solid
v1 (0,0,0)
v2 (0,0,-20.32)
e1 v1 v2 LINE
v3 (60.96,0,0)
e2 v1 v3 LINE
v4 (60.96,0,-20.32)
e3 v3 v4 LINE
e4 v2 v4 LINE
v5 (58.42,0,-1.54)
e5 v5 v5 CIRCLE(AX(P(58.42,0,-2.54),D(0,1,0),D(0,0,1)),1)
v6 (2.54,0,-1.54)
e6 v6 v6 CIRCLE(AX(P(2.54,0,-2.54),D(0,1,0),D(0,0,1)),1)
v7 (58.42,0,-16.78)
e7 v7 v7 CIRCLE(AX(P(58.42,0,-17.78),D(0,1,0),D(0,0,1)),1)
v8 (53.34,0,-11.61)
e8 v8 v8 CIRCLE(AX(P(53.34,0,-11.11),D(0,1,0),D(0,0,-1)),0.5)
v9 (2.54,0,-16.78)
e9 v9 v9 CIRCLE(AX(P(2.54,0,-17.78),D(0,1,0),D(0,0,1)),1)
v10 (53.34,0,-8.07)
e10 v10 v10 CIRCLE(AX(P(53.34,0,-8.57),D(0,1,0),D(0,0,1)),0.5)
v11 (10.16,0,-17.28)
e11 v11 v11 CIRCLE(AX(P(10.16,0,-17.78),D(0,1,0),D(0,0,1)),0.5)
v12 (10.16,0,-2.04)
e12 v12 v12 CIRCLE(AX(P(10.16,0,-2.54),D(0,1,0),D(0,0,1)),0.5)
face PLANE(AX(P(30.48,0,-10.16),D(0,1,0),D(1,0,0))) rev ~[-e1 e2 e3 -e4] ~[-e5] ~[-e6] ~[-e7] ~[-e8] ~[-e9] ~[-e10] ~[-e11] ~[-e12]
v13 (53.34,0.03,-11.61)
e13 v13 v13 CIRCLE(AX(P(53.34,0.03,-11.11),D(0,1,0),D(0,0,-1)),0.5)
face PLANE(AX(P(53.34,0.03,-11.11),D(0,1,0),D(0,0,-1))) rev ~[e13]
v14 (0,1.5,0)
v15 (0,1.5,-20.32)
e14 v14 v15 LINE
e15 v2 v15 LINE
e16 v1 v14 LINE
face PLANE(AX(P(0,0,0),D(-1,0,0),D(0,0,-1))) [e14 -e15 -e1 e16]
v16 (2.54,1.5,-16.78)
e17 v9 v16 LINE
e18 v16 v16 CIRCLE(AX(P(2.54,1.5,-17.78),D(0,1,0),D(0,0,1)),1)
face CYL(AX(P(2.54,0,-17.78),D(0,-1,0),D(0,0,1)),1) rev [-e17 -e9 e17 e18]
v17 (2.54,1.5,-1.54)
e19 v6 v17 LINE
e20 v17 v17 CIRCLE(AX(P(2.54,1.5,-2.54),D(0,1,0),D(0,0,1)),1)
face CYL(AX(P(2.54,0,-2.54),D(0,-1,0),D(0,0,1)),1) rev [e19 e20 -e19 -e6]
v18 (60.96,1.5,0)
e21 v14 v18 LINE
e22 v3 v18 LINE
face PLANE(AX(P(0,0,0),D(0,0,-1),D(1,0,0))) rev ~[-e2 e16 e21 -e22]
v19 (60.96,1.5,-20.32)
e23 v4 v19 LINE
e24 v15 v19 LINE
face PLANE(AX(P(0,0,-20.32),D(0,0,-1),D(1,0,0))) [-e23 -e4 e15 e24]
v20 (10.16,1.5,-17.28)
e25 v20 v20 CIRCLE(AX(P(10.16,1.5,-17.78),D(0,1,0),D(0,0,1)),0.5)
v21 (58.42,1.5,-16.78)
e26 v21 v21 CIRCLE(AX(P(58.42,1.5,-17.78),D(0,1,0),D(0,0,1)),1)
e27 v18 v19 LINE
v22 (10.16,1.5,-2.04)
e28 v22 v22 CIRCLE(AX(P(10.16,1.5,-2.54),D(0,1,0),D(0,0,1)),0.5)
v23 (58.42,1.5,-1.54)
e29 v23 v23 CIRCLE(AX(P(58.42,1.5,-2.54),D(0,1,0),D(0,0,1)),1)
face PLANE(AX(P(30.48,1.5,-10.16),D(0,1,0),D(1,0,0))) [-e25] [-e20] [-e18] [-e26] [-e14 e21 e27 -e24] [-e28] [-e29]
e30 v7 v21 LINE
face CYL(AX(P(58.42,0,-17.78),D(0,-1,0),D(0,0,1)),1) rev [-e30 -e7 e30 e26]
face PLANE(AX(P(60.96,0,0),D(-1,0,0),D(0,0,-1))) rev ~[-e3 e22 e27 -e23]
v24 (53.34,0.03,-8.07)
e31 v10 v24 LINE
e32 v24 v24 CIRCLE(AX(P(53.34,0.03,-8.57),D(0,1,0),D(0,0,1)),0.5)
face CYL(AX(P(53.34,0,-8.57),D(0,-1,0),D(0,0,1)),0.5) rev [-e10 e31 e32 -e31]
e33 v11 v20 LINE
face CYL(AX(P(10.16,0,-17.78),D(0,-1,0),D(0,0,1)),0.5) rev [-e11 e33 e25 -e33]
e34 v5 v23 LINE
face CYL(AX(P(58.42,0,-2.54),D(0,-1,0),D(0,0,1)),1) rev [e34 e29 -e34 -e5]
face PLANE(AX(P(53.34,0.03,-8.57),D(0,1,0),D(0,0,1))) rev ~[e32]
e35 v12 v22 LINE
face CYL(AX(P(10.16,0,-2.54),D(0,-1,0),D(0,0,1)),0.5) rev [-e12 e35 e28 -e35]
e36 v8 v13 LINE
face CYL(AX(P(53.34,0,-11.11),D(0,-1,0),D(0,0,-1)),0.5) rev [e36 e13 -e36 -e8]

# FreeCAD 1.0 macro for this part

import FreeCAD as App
import Part
import Sketcher

doc = App.newDocument("Part")
body = doc.addObject("PartDesign::Body", "Body")

# Sketch on XZ plane
sketch1 = body.newObject("Sketcher::SketchObject", "Sketch")
sketch1.AttachmentSupport = (doc.getObject("XZ_Plane"), [""])
sketch1.MapMode = "FlatFace"
sketch1.addGeometry(Part.LineSegment(App.Vector(0, -20.32, 0), App.Vector(0, 0, 0)), False)
sketch1.addGeometry(Part.LineSegment(App.Vector(0, 0, 0), App.Vector(60.96, 0, 0)), False)
sketch1.addGeometry(Part.LineSegment(App.Vector(60.96, 0, 0), App.Vector(60.96, -20.32, 0)), False)
sketch1.addGeometry(Part.LineSegment(App.Vector(60.96, -20.32, 0), App.Vector(0, -20.32, 0)), False)
sketch1.addGeometry(Part.Circle(App.Vector(2.54, -2.54, 0), App.Vector(0, 0, 1), 1), False)
sketch1.addGeometry(Part.Circle(App.Vector(10.16, -2.54, 0), App.Vector(0, 0, 1), 0.5), False)
sketch1.addGeometry(Part.Circle(App.Vector(58.42, -2.54, 0), App.Vector(0, 0, 1), 1), False)
sketch1.addGeometry(Part.Circle(App.Vector(2.54, -17.78, 0), App.Vector(0, 0, 1), 1), False)
sketch1.addGeometry(Part.Circle(App.Vector(10.16, -17.78, 0), App.Vector(0, 0, 1), 0.5), False)
sketch1.addGeometry(Part.Circle(App.Vector(58.42, -17.78, 0), App.Vector(0, 0, 1), 1), False)
sketch1.addConstraint(Sketcher.Constraint("Coincident", 0, 2, 1, 1))
sketch1.addConstraint(Sketcher.Constraint("Coincident", 1, 2, 2, 1))
sketch1.addConstraint(Sketcher.Constraint("Coincident", 2, 2, 3, 1))
sketch1.addConstraint(Sketcher.Constraint("Coincident", 3, 2, 0, 1))
sketch1.addConstraint(Sketcher.Constraint("Vertical", 0))
sketch1.addConstraint(Sketcher.Constraint("Horizontal", 1))
sketch1.addConstraint(Sketcher.Constraint("Vertical", 2))
sketch1.addConstraint(Sketcher.Constraint("Horizontal", 3))
sketch1.addConstraint(Sketcher.Constraint("Coincident", 0, 2, -1, 1))
sketch1.addConstraint(Sketcher.Constraint("Equal", 4, 6))
sketch1.addConstraint(Sketcher.Constraint("Equal", 6, 7))
sketch1.addConstraint(Sketcher.Constraint("Equal", 5, 8))
sketch1.addConstraint(Sketcher.Constraint("Equal", 7, 9))
sketch1.addConstraint(Sketcher.Constraint("Horizontal", 4, 3, 5, 3))
sketch1.addConstraint(Sketcher.Constraint("Horizontal", 5, 3, 6, 3))
sketch1.addConstraint(Sketcher.Constraint("Horizontal", 7, 3, 8, 3))
sketch1.addConstraint(Sketcher.Constraint("Horizontal", 8, 3, 9, 3))
sketch1.addConstraint(Sketcher.Constraint("Vertical", 4, 3, 7, 3))
sketch1.addConstraint(Sketcher.Constraint("Vertical", 5, 3, 8, 3))
sketch1.addConstraint(Sketcher.Constraint("Vertical", 6, 3, 9, 3))
sketch1.addConstraint(Sketcher.Constraint("Diameter", 4, 2.0))
sketch1.addConstraint(Sketcher.Constraint("Diameter", 5, 1.0))
sketch1.addConstraint(Sketcher.Constraint("DistanceX", 1, 1, 1, 2, 60.96))
sketch1.addConstraint(Sketcher.Constraint("DistanceY", 0, 1, 0, 2, 20.32))
sketch1.addConstraint(Sketcher.Constraint("DistanceX", 5, 3, 1, 2, 50.8))
sketch1.addConstraint(Sketcher.Constraint("DistanceX", -1, 1, 4, 3, 2.54))
sketch1.addConstraint(Sketcher.Constraint("DistanceY", 4, 3, -1, 1, 2.54))
sketch1.addConstraint(Sketcher.Constraint("DistanceX", -1, 1, 6, 3, 58.42))
sketch1.addConstraint(Sketcher.Constraint("DistanceY", 7, 3, -1, 1, 17.78))
pad1 = body.newObject("PartDesign::Pad", "Pad")
pad1.Profile = sketch1
pad1.Length = 1.5
pad1.Reversed = True

# Sketch on XZ plane
sketch2 = body.newObject("Sketcher::SketchObject", "Sketch001")
sketch2.AttachmentSupport = (doc.getObject("XZ_Plane"), [""])
sketch2.MapMode = "FlatFace"
sketch2.addGeometry(Part.Circle(App.Vector(53.34, -8.57, 0), App.Vector(0, 0, 1), 0.5), False)
sketch2.addGeometry(Part.Circle(App.Vector(53.34, -11.11, 0), App.Vector(0, 0, 1), 0.5), False)
sketch2.addConstraint(Sketcher.Constraint("Equal", 0, 1))
sketch2.addConstraint(Sketcher.Constraint("Vertical", 0, 3, 1, 3))
sketch2.addConstraint(Sketcher.Constraint("Diameter", 0, 1.0))
sketch2.addConstraint(Sketcher.Constraint("DistanceX", -1, 1, 0, 3, 53.34))
sketch2.addConstraint(Sketcher.Constraint("DistanceY", 0, 3, -1, 1, 8.57))
sketch2.addConstraint(Sketcher.Constraint("DistanceY", 1, 3, -1, 1, 11.11))
pocket1 = body.newObject("PartDesign::Pocket", "Pocket")
pocket1.Profile = sketch2
pocket1.Length = 0.03

doc.recompute()
